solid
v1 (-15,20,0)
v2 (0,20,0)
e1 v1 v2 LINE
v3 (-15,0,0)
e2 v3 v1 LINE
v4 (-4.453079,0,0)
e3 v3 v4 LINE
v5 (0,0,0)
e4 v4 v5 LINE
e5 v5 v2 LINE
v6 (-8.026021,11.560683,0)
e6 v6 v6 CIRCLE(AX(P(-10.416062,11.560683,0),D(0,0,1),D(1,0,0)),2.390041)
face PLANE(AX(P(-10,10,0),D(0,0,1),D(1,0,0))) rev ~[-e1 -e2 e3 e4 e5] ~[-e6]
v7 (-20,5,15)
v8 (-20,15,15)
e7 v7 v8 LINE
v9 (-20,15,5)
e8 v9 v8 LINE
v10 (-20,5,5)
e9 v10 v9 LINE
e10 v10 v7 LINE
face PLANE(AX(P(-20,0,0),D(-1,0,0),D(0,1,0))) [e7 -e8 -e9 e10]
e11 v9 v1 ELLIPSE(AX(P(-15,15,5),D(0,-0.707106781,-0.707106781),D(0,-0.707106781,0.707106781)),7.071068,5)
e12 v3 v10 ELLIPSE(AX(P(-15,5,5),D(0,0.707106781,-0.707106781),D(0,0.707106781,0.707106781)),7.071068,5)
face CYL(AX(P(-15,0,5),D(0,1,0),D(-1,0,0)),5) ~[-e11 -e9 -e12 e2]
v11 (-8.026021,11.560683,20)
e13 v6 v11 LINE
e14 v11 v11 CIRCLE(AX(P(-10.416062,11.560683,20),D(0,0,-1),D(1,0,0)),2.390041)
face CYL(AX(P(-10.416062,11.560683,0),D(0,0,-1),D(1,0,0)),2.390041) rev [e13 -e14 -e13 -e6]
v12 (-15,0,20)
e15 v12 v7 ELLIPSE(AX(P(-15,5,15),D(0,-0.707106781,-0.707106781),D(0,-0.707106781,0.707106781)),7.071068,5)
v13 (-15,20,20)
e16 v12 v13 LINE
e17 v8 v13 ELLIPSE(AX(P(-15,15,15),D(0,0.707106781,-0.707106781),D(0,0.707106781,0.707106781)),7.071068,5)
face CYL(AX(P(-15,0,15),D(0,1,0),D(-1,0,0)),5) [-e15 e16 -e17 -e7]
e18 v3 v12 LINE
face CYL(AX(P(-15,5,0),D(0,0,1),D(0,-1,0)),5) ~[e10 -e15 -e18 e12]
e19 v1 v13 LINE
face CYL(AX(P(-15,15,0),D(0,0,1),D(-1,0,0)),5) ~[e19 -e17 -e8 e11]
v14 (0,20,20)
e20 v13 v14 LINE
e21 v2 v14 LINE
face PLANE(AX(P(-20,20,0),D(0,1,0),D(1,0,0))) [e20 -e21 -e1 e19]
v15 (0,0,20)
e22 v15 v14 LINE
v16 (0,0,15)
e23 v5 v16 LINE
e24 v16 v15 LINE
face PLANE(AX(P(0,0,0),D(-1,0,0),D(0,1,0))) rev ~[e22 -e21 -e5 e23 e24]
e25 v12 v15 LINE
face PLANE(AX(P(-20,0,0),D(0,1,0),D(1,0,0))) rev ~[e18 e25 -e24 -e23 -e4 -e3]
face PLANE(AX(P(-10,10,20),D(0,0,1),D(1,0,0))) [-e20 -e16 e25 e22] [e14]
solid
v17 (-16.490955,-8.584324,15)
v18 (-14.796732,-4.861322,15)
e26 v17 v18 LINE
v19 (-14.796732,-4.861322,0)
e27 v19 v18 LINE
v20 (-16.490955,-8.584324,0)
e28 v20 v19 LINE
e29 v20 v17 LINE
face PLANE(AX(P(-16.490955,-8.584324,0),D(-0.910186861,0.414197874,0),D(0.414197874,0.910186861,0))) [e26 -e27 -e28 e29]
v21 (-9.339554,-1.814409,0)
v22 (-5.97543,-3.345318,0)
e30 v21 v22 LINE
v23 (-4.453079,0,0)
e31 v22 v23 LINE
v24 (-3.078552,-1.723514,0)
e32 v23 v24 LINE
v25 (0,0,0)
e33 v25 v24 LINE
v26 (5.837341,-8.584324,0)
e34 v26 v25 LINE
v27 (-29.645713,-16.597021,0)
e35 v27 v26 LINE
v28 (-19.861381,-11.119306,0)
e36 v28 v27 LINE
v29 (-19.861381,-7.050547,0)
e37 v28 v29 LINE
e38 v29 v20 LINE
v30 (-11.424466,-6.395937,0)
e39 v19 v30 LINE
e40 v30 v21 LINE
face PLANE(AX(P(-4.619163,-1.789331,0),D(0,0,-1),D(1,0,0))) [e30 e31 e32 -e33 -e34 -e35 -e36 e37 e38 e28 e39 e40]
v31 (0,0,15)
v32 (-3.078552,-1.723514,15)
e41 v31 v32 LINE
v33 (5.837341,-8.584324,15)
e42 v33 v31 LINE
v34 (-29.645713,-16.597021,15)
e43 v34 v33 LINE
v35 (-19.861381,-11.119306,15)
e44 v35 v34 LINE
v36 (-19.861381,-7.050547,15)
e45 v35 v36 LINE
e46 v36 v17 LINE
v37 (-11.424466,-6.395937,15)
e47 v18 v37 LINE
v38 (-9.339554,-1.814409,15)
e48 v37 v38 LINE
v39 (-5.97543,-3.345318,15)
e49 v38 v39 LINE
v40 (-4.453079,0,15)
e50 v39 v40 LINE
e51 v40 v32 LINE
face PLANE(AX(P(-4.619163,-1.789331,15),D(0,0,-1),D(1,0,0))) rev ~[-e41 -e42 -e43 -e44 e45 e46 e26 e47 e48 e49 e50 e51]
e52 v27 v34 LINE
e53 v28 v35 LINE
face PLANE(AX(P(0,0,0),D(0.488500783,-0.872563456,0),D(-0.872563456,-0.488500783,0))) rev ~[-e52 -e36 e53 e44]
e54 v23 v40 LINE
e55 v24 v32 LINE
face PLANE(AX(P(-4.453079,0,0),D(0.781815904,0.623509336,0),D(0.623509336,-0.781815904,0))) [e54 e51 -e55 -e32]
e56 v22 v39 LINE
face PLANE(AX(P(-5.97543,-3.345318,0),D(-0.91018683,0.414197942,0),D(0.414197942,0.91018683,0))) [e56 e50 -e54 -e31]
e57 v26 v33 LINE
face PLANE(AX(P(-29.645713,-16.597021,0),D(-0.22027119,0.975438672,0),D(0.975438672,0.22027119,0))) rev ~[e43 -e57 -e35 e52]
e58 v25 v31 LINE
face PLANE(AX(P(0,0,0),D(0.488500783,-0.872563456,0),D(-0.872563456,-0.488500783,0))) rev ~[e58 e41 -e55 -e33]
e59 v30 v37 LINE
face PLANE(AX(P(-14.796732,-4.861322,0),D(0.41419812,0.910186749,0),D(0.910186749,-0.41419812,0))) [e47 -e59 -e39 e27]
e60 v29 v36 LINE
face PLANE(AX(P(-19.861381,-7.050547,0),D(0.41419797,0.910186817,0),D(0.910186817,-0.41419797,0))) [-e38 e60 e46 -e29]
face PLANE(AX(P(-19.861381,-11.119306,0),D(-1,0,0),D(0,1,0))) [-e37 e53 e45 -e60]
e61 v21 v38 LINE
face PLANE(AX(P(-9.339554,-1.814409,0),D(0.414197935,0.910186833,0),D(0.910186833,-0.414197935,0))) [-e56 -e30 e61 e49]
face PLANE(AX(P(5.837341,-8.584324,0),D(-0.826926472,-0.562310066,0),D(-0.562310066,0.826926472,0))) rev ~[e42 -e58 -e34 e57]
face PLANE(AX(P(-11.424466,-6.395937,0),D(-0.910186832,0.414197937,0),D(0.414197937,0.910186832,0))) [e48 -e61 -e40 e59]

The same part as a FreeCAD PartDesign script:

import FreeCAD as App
import Part
import Sketcher
Q = App.Units.Quantity


def edges_at(feature, points):
    """Names of the edges that pass closest to the given points."""
    edges = feature.Shape.Edges
    near = lambda p: min(range(len(edges)), key=lambda i: edges[i].distToShape(Part.Vertex(*p))[0])
    return sorted({f"Edge{near(p) + 1}" for p in points})


def add_polygon(sketch, points):
    """Adds a closed chain of lines whose ends are joined by coincident constraints."""
    first, n = sketch.GeometryCount, len(points)
    for a, b in zip(points, points[1:] + points[:1]):
        sketch.addGeometry(Part.LineSegment(App.Vector(*a, 0), App.Vector(*b, 0)), False)
    for i in range(n):
        sketch.addConstraint(Sketcher.Constraint("Coincident", first + i, 2, first + (i + 1) % n, 1))

doc = App.newDocument("Part")
body = doc.addObject("PartDesign::Body", "Body")

# Sketch on XY plane
sketch1 = body.newObject("Sketcher::SketchObject", "Sketch")
sketch1.AttachmentSupport = (doc.getObject("XY_Plane"), [""])
sketch1.MapMode = "FlatFace"
add_polygon(sketch1, [(6, -9), (0, 0), (-30, -17)])  # lines 0-2
sketch1.addConstraint(Sketcher.Constraint("Coincident", 0, 2, -1, 1))
sketch1.addConstraint(Sketcher.Constraint("Distance", 0, Q("10.381 mm")))
sketch1.addConstraint(Sketcher.Constraint("Distance", 2, Q("36.376509 mm")))
sketch1.addConstraint(Sketcher.Constraint("DistanceY", 1, 2, -1, 1, Q("16.597021 mm")))
sketch1.addConstraint(Sketcher.Constraint("DistanceX", -1, 1, 2, 2, Q("5.837341 mm")))
pad1 = body.newObject("PartDesign::Pad", "Pad")
pad1.Profile = sketch1
pad1.Length = 15
body2 = doc.addObject("PartDesign::Body", "Body001")

# Sketch on XY plane
sketch2 = body2.newObject("Sketcher::SketchObject", "Sketch001")
sketch2.AttachmentSupport = (doc.getObject("XY_Plane001"), [""])
sketch2.MapMode = "FlatFace"
add_polygon(sketch2, [(-20, 20), (-20, 0), (0, 0), (0, 20)])  # lines 0-3
sketch2.addConstraint(Sketcher.Constraint("Vertical", 0))
sketch2.addConstraint(Sketcher.Constraint("Horizontal", 1))
sketch2.addConstraint(Sketcher.Constraint("Vertical", 2))
sketch2.addConstraint(Sketcher.Constraint("Horizontal", 3))
sketch2.addConstraint(Sketcher.Constraint("Coincident", 1, 2, -1, 1))
sketch2.addConstraint(Sketcher.Constraint("Equal", 3, 0))
sketch2.addConstraint(Sketcher.Constraint("DistanceX", 1, 1, 1, 2, Q("20 mm")))
pad2 = body2.newObject("PartDesign::Pad", "Pad001")
pad2.Profile = sketch2
pad2.Length = 20

# Sketch on XY plane
sketch3 = body2.newObject("Sketcher::SketchObject", "Sketch002")
sketch3.AttachmentSupport = (doc.getObject("XY_Plane001"), [""])
sketch3.MapMode = "FlatFace"
sketch3.addGeometry(Part.Circle(App.Vector(-10.4, 11.6, 0), App.Vector(0, 0, 1), 2.4), False)
sketch3.addConstraint(Sketcher.Constraint("Diameter", 0, Q("4.780082 mm")))
sketch3.addConstraint(Sketcher.Constraint("DistanceX", 0, 3, -1, 1, Q("10.416062 mm")))
sketch3.addConstraint(Sketcher.Constraint("DistanceY", -1, 1, 0, 3, Q("11.560683 mm")))
pocket1 = body2.newObject("PartDesign::Pocket", "Pocket")
pocket1.Profile = sketch3
pocket1.Length = 25
pocket1.Reversed = True
body.AllowCompound = True
doc.recompute()

boolean = body.newObject("PartDesign::Boolean", "Boolean")
boolean.Type = "Fuse"
boolean.addObjects([body2])

# Sketch on XY plane
sketch4 = body.newObject("Sketcher::SketchObject", "Sketch003")
sketch4.AttachmentSupport = (doc.getObject("XY_Plane"), [""])
sketch4.MapMode = "FlatFace"
add_polygon(sketch4, [(-6, -3.3), (-4.5, 0), (-3.1, -1.7)])  # lines 0-2
add_polygon(sketch4, [(-9.3, -1.8), (-6, -3.3), (-11.4, -6.4)])  # lines 3-5
add_polygon(sketch4, [(-14.8, -4.9), (-11.4, -6.4), (-19.9, -11.1), (-19.9, -7.1), (-16.5, -8.6)])  # lines 6-10
sketch4.addConstraint(Sketcher.Constraint("Vertical", 8))
sketch4.addConstraint(Sketcher.Constraint("Coincident", 3, 2, 2, 2))
sketch4.addConstraint(Sketcher.Constraint("Coincident", 6, 2, 4, 2))
sketch4.addConstraint(Sketcher.Constraint("PointOnObject", 0, 2, -1))
sketch4.addConstraint(Sketcher.Constraint("Perpendicular", 0, 3))
sketch4.addConstraint(Sketcher.Constraint("Parallel", 2, 4))
sketch4.addConstraint(Sketcher.Constraint("Perpendicular", 3, 5))
sketch4.addConstraint(Sketcher.Constraint("Perpendicular", 5, 6))
sketch4.addConstraint(Sketcher.Constraint("Parallel", 4, 7))
sketch4.addConstraint(Sketcher.Constraint("Parallel", 6, 9))
sketch4.addConstraint(Sketcher.Constraint("Perpendicular", 9, 10))
sketch4.addConstraint(Sketcher.Constraint("DistanceX", 5, 2, 1, 2, Q("6.261002 mm")))
sketch4.addConstraint(Sketcher.Constraint("Distance", 1, Q("2.204501 mm")))
sketch4.addConstraint(Sketcher.Constraint("DistanceY", 8, 1, 8, 2, Q("4.068759 mm")))
sketch4.addConstraint(Sketcher.Constraint("DistanceX", 9, 2, 5, 2, Q("7.151401 mm")))
sketch4.addConstraint(Sketcher.Constraint("Distance", 0, Q("3.675419 mm")))
sketch4.addConstraint(Sketcher.Constraint("Distance", 3, Q("3.696081 mm")))
sketch4.addConstraint(Sketcher.Constraint("Distance", 10, Q("4.090371 mm")))
sketch4.addConstraint(Sketcher.Constraint("DistanceX", 0, 2, -1, 1, Q("4.453079 mm")))
sketch4.addConstraint(Sketcher.Constraint("DistanceX", 2, 2, -1, 1, Q("5.97543 mm")))
pad3 = body.newObject("PartDesign::Pad", "Pad002")
pad3.Profile = sketch4
pad3.Length = 15
doc.recompute()

fillet = body.newObject("PartDesign::Fillet", "Fillet")
fillet.Base = (pad3, edges_at(pad3, [
    (-20, 20, 10),
    (-20, 0, 10),
    (-20, 10, 0),
    (-20, 10, 20),
]))
fillet.Radius = 5

doc.recompute()
